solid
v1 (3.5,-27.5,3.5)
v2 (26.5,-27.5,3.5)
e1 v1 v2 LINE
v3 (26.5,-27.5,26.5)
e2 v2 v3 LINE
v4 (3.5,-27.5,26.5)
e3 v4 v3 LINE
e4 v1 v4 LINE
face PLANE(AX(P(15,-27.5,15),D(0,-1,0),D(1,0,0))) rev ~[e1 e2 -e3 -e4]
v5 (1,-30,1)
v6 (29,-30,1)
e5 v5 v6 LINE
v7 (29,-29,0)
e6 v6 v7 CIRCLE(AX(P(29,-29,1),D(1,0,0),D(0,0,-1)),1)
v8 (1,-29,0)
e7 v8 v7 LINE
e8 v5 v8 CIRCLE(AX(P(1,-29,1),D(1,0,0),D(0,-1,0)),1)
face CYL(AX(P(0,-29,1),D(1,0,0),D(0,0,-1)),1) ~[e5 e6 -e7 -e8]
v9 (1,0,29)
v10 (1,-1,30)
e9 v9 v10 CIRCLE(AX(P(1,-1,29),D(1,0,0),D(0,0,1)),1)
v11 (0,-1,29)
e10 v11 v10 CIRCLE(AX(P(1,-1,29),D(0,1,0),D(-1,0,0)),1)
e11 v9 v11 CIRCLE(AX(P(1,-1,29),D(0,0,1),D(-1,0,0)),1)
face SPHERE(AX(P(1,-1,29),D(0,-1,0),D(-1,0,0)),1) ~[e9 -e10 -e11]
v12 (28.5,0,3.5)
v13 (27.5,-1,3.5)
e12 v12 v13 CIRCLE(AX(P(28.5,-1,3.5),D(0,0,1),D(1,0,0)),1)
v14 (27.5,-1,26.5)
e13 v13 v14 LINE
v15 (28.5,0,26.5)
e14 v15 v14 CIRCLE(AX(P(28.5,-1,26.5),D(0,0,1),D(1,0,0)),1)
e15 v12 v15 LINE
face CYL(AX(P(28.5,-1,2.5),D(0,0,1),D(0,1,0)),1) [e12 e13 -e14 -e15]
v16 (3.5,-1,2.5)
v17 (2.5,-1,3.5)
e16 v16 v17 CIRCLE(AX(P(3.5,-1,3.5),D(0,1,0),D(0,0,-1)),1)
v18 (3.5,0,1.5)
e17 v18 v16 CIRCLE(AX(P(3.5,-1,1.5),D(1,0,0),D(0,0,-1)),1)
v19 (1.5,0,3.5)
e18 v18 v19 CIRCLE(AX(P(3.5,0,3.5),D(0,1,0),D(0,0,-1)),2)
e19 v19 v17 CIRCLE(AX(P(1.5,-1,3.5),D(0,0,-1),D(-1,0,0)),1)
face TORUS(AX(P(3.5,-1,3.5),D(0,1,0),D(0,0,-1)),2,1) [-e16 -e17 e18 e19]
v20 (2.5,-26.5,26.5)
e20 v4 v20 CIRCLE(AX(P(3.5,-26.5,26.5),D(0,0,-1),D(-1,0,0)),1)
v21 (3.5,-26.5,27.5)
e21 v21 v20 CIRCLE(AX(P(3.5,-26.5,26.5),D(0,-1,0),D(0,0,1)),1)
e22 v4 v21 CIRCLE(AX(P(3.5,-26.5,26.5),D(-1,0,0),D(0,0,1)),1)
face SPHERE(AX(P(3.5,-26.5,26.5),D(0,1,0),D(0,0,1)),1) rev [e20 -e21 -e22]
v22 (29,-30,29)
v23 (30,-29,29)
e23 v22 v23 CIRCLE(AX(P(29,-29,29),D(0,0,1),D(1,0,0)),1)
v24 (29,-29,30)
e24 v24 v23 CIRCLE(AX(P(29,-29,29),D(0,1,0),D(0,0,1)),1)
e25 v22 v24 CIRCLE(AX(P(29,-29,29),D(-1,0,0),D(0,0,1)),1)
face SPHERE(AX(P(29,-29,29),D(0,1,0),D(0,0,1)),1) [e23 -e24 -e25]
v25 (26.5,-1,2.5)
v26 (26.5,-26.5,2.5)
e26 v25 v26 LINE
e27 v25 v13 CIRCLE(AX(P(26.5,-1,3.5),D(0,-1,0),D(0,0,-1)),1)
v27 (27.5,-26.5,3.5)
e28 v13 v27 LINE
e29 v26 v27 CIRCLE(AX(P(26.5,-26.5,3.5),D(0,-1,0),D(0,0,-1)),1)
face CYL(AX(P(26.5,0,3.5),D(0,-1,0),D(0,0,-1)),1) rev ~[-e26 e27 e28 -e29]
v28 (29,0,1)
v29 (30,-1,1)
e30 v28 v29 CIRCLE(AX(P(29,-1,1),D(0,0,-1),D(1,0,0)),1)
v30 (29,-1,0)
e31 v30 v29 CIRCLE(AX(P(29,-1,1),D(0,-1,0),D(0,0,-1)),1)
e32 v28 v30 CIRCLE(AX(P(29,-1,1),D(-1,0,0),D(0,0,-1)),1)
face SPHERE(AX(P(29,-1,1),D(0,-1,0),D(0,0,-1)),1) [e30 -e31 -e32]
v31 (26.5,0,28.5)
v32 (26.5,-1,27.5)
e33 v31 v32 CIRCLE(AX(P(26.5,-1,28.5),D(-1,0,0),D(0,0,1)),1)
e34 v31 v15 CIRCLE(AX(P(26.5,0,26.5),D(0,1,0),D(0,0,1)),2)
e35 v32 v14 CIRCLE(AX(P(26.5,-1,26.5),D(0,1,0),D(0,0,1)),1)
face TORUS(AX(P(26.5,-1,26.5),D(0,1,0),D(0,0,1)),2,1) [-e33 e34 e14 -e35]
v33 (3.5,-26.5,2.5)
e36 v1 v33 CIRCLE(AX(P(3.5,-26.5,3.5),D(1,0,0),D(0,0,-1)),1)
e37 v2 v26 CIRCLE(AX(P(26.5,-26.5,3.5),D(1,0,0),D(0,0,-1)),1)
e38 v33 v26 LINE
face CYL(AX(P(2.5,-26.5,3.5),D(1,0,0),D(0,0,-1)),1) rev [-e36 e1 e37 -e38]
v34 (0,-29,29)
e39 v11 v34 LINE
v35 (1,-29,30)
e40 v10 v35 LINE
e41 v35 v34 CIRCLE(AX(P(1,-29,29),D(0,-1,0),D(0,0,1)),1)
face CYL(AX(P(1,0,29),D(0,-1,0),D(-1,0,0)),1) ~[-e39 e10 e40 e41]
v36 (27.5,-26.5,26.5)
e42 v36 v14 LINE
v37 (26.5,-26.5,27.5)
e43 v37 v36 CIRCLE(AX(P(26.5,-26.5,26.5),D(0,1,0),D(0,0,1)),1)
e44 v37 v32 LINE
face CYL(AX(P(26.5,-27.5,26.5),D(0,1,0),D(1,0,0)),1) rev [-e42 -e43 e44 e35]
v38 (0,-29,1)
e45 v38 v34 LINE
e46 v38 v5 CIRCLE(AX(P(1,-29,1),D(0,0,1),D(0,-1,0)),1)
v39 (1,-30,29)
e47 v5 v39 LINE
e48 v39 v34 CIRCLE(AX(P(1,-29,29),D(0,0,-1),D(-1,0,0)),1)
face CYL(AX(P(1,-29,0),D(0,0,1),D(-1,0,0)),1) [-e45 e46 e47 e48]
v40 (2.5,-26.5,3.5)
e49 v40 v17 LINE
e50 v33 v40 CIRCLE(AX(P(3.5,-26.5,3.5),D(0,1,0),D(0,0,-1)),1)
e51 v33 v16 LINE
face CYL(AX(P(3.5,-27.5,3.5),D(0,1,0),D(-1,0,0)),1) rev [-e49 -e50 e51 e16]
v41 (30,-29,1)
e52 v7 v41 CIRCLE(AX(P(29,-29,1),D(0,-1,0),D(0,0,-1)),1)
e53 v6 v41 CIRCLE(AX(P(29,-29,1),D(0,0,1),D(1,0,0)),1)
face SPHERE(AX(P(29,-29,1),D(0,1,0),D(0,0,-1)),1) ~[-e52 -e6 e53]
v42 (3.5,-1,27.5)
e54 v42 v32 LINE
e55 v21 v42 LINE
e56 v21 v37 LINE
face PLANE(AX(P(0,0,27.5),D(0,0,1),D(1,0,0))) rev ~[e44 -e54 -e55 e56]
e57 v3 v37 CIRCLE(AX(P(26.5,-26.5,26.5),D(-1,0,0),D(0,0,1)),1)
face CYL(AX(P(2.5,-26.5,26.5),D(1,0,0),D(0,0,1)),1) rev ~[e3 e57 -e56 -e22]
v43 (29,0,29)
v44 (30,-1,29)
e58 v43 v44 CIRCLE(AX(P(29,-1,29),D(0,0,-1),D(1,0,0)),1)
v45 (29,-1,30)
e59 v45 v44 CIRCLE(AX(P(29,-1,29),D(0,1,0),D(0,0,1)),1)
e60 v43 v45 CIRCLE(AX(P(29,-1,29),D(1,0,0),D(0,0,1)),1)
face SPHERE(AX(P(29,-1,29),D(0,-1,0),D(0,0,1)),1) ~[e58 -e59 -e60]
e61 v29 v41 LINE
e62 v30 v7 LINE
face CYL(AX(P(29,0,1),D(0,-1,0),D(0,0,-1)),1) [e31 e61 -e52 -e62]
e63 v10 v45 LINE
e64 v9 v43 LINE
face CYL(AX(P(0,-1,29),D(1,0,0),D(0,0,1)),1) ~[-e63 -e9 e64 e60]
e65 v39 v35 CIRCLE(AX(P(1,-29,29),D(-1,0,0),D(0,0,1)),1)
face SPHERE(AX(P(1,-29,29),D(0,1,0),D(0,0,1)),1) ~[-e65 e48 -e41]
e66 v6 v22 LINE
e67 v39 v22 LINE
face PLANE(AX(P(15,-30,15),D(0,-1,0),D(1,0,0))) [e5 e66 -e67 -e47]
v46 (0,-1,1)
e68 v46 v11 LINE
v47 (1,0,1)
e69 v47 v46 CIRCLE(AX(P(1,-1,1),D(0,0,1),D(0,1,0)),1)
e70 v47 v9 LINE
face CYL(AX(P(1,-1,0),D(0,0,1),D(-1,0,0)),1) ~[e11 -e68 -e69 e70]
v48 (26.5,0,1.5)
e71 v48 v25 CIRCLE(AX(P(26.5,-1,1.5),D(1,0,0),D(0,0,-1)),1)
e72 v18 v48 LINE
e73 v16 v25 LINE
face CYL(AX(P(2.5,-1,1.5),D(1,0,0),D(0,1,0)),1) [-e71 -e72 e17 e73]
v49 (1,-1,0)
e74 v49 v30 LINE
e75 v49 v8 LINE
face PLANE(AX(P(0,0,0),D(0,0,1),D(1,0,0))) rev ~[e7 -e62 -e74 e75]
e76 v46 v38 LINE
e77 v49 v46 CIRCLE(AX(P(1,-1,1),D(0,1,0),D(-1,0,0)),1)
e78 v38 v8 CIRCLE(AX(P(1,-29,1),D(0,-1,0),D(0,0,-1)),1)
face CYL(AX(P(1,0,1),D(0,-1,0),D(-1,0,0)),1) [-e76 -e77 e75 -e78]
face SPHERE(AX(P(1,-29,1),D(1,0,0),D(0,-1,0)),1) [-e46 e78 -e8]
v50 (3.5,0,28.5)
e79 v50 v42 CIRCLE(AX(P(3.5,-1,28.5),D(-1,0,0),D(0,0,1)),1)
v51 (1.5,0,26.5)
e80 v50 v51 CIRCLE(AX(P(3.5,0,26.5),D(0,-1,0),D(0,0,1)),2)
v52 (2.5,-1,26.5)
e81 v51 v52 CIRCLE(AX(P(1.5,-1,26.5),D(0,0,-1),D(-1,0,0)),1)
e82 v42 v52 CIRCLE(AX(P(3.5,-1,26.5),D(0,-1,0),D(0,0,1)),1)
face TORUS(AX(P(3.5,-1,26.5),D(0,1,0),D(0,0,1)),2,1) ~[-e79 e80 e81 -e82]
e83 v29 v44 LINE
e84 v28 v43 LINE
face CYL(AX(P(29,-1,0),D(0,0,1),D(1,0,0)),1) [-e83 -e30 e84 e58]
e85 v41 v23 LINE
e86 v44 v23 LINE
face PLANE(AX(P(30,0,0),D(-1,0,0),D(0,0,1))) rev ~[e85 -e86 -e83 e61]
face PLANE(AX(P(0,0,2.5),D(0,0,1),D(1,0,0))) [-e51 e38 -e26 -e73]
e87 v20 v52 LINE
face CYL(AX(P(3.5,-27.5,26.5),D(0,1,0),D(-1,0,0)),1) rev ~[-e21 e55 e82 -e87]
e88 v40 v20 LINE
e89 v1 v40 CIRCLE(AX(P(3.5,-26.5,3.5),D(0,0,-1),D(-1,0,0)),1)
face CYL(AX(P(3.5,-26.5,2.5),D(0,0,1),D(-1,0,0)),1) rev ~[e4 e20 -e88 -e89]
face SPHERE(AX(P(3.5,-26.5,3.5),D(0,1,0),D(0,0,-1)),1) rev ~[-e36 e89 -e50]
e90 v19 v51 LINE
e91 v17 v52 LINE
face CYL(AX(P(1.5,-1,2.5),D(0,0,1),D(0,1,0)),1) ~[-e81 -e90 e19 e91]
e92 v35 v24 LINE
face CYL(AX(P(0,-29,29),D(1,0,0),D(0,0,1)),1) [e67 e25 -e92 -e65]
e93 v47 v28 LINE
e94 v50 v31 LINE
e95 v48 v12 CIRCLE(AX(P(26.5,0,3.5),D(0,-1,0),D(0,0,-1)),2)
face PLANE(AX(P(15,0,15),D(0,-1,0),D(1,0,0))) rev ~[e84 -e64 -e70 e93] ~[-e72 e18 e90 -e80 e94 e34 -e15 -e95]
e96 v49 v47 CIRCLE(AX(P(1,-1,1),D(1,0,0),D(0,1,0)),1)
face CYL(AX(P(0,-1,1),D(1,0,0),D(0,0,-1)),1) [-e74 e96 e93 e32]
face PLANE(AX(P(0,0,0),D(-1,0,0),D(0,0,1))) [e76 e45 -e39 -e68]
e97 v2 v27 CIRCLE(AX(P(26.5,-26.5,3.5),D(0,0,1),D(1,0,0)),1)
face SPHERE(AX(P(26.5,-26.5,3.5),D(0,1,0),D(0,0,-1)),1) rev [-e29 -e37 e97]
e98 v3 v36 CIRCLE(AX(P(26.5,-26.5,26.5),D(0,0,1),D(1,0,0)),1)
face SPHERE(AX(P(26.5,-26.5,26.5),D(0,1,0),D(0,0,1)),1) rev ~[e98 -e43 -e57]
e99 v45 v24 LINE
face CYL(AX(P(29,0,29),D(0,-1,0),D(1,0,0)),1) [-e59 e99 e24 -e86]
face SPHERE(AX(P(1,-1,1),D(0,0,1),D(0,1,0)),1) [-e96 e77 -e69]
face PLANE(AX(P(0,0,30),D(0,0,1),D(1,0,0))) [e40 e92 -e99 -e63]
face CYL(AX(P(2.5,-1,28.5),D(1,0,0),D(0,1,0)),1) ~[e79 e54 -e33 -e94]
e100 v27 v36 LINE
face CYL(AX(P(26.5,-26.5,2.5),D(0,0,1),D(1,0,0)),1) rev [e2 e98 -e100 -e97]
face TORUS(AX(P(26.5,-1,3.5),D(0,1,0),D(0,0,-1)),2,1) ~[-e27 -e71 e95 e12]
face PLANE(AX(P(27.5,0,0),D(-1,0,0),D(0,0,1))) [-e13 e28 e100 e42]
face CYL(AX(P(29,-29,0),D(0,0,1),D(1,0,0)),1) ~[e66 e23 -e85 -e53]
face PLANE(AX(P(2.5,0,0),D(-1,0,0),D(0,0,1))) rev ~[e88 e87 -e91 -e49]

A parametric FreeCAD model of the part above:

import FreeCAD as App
import Part
import Sketcher
from FreeCAD import Vector
Q = App.Units.Quantity


def faces_at(feature, points):
    """Names of the faces that lie closest to the given points."""
    faces = feature.Shape.Faces
    near = lambda p: min(range(len(faces)), key=lambda i: faces[i].distToShape(Part.Vertex(*p))[0])
    return sorted({f"Face{near(p) + 1}" for p in points})


def add_polygon(sketch, points):
    """Adds a closed chain of lines whose ends are joined by coincident constraints."""
    first, n = sketch.GeometryCount, len(points)
    for a, b in zip(points, points[1:] + points[:1]):
        sketch.addGeometry(Part.LineSegment(App.Vector(*a, 0), App.Vector(*b, 0)), False)
    for i in range(n):
        sketch.addConstraint(Sketcher.Constraint("Coincident", first + i, 2, first + (i + 1) % n, 1))

doc = App.newDocument("Part")
body = doc.addObject("PartDesign::Body", "Body")

sketch1 = body.newObject("Sketcher::SketchObject", "Sketch")
sketch1.AttachmentSupport = (doc.getObject("XZ_Plane"), [""])
sketch1.MapMode = "FlatFace"
add_polygon(sketch1, [(0, 30), (0, 0), (30, 0), (30, 30)])
sketch1.addConstraint([
    Sketcher.Constraint("Vertical", 0),
    Sketcher.Constraint("Horizontal", 1),
    Sketcher.Constraint("Vertical", 2),
    Sketcher.Constraint("Horizontal", 3),
    Sketcher.Constraint("Coincident", 0, 2, -1, 1),
    Sketcher.Constraint("Equal", 3, 0),
    Sketcher.Constraint("DistanceX", 1, 1, 1, 2, Q("30 mm")),
])
pad1 = body.newObject("PartDesign::Pad", "Pad")
pad1.Profile = sketch1
pad1.Length = 30
doc.recompute()

thickness = body.newObject("PartDesign::Thickness", "Thickness")
thickness.Base = (pad1, faces_at(pad1, [(15, 0, 15)]))
thickness.Value = 2.5
thickness.Reversed = True
thickness.Join = "Arc"
doc.recompute()

fillet = body.newObject("PartDesign::Fillet", "Fillet")
fillet.Base = (thickness, ["Edge1"])
fillet.UseAllEdges = True
fillet.Radius = 1

doc.recompute()
